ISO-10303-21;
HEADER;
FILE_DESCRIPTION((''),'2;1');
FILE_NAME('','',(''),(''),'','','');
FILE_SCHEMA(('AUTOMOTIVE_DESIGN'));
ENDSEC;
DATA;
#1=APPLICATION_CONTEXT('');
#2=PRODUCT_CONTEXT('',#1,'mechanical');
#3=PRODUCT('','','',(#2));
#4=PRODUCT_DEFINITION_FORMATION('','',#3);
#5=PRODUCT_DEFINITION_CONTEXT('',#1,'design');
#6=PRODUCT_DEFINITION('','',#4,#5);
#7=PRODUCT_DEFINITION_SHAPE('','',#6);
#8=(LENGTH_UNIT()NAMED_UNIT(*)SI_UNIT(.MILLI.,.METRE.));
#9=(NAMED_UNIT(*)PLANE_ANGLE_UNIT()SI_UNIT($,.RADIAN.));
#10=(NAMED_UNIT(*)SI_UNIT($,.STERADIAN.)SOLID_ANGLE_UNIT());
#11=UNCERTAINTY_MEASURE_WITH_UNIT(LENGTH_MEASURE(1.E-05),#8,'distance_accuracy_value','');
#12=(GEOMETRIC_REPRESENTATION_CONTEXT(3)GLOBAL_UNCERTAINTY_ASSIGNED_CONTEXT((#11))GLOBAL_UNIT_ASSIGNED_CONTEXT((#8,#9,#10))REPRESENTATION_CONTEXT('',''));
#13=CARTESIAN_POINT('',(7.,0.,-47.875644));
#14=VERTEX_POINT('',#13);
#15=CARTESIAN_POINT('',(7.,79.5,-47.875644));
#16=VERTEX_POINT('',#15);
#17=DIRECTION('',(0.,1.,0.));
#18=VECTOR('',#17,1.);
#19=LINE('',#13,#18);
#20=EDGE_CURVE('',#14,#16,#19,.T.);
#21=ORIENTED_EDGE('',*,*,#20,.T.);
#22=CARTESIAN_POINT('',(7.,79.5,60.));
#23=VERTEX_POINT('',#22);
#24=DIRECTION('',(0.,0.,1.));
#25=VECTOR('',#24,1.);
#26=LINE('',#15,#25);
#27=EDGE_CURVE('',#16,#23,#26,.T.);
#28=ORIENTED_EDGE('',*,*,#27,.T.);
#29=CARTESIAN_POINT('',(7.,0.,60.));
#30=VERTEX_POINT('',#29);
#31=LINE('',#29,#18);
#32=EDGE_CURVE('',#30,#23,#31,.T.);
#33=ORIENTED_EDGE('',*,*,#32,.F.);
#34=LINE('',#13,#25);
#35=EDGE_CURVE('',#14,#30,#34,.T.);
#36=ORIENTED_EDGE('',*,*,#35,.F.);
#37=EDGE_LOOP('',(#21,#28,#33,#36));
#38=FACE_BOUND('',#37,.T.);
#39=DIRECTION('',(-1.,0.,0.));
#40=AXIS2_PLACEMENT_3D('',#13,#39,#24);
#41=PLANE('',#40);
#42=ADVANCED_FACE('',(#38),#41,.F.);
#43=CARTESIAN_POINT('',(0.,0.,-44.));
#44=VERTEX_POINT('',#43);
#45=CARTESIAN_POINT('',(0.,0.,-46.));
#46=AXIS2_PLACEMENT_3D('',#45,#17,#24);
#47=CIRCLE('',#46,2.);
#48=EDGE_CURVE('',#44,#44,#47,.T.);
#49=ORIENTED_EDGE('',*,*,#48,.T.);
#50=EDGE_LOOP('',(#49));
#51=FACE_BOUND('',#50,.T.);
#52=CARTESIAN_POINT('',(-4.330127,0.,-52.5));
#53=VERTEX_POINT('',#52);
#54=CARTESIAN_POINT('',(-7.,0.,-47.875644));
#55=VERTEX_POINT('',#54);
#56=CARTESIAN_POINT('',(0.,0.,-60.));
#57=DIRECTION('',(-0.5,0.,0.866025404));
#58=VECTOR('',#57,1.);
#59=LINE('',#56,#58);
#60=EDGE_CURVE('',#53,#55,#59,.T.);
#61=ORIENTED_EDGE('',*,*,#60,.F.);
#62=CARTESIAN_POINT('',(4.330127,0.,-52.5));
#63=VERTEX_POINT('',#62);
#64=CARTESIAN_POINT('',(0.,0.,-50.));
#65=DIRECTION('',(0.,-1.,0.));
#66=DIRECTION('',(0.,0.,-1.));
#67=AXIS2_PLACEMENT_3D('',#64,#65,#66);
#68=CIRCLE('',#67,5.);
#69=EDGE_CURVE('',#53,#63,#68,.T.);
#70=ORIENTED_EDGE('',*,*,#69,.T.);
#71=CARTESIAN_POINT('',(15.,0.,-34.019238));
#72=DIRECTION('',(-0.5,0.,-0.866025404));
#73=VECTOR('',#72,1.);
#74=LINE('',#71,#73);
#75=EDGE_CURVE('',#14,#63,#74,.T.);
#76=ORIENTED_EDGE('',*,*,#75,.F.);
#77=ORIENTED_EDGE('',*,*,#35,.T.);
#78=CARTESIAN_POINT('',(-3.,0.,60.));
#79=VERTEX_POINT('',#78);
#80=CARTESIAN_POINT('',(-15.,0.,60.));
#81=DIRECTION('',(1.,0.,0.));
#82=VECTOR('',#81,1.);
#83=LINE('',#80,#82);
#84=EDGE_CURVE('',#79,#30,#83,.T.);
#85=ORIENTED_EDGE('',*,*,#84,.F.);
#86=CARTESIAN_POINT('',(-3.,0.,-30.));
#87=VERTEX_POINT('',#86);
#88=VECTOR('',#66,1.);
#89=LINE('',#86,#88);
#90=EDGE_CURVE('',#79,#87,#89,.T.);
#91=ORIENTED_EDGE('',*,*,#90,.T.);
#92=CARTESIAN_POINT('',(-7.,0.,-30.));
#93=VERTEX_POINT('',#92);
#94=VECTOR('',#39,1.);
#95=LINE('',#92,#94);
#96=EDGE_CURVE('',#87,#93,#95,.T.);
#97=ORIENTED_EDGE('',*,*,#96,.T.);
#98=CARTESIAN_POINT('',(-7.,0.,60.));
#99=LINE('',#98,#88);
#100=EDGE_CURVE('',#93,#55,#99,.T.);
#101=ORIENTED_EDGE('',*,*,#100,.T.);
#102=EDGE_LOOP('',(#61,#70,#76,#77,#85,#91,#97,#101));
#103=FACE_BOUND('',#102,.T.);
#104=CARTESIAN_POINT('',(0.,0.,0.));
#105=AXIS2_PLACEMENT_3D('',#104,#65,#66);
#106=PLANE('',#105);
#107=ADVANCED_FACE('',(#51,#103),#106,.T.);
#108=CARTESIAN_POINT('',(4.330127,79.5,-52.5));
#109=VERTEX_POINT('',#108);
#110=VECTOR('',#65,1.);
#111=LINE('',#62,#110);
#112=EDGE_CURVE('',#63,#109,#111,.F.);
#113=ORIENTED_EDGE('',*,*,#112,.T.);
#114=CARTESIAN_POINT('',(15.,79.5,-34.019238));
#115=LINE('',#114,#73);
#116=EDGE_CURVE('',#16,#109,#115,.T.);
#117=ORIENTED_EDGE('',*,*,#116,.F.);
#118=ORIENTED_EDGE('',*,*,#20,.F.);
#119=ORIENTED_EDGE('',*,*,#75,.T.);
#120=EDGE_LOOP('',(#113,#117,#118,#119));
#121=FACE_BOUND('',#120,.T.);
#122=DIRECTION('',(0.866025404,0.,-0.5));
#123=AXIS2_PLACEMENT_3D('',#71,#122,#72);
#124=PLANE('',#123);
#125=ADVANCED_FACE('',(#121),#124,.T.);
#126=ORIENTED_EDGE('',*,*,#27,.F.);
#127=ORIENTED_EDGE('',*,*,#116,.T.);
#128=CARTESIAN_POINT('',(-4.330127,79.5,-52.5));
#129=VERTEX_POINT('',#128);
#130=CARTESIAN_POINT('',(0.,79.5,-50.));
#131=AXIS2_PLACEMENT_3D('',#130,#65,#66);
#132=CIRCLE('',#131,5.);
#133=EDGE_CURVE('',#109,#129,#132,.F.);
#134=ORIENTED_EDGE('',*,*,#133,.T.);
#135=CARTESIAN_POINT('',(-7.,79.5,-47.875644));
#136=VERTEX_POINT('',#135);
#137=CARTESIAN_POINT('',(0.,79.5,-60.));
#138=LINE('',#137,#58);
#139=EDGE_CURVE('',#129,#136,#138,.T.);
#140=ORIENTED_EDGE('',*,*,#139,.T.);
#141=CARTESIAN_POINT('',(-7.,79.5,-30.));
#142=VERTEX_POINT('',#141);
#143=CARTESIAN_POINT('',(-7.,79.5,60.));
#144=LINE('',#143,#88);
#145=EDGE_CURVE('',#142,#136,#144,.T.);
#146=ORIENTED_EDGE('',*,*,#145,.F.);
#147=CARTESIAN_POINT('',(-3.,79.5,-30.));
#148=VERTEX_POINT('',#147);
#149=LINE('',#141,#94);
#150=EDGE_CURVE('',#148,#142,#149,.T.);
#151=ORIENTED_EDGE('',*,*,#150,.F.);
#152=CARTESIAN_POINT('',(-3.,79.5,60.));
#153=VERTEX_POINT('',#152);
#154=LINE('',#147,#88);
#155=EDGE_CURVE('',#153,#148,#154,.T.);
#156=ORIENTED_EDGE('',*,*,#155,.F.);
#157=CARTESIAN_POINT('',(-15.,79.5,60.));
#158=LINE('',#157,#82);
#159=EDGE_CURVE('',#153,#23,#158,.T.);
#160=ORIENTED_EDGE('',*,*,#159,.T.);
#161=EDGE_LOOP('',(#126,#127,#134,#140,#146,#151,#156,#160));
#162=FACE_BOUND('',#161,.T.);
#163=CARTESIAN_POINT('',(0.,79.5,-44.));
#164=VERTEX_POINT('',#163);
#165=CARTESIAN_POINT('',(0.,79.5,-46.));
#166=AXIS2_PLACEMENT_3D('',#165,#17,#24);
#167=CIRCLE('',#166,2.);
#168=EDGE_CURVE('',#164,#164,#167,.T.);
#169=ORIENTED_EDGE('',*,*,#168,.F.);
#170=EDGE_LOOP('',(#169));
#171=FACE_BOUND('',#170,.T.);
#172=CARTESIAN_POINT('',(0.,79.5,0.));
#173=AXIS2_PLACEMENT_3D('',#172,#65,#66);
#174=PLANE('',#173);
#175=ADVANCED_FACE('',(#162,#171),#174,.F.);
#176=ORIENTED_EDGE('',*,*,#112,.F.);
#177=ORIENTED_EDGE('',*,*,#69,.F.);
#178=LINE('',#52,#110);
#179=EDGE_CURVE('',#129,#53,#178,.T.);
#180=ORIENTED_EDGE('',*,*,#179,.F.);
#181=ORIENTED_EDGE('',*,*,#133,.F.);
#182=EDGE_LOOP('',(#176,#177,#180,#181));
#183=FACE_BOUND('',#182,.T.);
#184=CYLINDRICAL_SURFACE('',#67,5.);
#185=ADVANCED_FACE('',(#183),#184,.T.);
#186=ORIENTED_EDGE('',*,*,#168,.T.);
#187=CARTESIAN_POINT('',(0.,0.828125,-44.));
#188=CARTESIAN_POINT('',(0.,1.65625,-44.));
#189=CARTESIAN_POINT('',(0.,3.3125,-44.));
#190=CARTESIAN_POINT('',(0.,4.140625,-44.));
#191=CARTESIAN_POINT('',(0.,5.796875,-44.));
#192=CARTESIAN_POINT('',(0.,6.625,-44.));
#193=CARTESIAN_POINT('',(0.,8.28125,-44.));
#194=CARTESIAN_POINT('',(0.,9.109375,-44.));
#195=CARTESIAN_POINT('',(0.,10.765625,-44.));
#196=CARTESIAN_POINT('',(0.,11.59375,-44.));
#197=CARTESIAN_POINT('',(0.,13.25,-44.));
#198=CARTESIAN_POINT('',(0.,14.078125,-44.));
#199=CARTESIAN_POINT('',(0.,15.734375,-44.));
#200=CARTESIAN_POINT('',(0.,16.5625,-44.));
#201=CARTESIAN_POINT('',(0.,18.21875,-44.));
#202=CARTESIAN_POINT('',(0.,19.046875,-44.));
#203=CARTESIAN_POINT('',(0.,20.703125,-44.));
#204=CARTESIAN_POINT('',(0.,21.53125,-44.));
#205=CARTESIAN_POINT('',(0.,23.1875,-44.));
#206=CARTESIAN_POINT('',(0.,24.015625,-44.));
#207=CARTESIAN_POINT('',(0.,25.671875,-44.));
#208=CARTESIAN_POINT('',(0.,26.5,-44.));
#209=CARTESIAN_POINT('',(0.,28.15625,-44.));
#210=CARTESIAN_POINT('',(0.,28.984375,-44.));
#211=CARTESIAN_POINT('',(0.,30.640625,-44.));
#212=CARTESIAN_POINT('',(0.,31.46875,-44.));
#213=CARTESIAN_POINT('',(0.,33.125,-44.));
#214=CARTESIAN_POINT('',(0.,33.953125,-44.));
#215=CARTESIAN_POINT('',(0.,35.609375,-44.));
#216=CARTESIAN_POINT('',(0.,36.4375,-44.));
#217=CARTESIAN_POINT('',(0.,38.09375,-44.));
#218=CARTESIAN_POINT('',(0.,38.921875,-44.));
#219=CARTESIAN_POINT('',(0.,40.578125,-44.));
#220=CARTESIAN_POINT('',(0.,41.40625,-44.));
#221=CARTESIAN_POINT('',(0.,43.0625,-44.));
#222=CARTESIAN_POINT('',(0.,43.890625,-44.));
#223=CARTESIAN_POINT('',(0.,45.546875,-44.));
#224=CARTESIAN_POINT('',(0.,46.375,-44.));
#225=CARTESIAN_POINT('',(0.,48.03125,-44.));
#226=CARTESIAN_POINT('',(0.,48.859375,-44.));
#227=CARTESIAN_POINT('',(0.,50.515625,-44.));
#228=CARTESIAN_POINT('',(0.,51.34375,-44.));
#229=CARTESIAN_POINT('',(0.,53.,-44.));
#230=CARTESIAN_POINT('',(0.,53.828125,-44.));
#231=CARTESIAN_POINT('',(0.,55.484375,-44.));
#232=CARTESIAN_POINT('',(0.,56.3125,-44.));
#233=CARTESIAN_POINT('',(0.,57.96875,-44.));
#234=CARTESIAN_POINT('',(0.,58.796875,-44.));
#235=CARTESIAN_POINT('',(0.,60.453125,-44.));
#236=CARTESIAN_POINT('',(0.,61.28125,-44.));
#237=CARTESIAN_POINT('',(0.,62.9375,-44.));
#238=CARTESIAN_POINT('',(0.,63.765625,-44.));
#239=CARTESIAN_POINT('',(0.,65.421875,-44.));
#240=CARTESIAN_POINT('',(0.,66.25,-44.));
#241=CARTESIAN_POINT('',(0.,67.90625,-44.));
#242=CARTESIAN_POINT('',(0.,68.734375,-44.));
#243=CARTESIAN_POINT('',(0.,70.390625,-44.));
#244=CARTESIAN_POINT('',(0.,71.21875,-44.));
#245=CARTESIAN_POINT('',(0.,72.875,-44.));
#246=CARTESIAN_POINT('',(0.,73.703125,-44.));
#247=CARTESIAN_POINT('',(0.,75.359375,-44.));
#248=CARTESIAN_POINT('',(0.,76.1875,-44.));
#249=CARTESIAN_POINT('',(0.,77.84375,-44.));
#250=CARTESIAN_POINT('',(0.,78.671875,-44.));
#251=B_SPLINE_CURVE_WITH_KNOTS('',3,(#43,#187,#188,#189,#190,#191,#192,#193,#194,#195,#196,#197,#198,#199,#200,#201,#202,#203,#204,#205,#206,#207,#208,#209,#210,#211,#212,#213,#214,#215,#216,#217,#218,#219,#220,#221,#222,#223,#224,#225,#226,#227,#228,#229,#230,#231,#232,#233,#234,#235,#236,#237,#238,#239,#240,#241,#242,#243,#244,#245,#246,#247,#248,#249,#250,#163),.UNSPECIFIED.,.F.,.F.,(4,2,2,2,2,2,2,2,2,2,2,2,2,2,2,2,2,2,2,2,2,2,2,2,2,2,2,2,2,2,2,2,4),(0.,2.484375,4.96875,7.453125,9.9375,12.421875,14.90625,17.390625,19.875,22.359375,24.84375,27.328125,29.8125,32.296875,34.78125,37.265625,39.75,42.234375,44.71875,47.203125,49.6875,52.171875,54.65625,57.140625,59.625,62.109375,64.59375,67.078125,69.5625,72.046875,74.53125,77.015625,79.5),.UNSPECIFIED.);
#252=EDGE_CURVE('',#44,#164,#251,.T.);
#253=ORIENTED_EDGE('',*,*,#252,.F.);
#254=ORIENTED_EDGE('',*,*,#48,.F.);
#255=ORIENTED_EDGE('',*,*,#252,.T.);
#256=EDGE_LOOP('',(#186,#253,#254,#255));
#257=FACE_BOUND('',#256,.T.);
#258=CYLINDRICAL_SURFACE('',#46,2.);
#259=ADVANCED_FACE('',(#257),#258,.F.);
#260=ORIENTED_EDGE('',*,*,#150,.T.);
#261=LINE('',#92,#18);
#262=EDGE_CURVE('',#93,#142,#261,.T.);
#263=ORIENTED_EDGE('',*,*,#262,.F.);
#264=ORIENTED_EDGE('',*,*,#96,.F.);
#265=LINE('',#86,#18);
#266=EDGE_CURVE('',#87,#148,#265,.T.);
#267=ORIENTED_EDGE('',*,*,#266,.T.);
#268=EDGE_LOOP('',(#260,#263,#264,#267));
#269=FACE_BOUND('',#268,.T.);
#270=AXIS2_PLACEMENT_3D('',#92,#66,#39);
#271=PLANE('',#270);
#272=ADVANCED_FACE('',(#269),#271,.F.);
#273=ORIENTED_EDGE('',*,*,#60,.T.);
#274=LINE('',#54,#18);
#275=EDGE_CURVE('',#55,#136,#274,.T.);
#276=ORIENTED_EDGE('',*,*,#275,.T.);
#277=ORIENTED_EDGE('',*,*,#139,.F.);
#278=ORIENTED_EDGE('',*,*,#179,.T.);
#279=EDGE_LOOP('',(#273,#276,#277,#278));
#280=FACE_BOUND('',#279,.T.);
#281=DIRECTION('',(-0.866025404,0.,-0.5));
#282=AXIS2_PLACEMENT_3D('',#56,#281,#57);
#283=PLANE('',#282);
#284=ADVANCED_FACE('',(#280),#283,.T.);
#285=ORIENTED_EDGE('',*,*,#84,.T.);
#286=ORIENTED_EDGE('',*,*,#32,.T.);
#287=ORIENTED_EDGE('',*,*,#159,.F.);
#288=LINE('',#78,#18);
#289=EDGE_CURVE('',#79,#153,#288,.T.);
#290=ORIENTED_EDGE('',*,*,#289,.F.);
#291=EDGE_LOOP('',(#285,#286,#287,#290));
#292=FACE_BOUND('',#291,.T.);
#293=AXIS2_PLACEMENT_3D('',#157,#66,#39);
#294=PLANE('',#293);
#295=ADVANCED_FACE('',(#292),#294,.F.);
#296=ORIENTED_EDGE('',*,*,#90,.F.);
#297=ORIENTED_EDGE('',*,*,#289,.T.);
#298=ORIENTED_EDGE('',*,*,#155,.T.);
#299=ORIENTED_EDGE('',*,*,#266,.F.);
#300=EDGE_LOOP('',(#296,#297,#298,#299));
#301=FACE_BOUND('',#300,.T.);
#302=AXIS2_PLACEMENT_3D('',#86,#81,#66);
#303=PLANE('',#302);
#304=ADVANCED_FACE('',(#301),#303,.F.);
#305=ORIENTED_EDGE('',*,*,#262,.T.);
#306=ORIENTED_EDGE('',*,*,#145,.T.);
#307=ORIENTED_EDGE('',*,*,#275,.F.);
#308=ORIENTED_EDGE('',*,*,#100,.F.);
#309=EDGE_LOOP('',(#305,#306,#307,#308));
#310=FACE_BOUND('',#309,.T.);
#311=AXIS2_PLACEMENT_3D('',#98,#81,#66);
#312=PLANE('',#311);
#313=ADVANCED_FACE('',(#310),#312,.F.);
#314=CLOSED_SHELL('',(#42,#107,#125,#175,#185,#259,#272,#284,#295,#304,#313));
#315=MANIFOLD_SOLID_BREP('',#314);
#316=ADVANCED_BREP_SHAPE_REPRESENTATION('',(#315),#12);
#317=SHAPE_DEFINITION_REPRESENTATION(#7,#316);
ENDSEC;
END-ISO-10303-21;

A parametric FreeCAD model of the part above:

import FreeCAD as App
import Part
import Sketcher

V = App.Vector
Q = App.Units.Quantity


def edges_at(feature, points):
    """Names of the edges that pass closest to the given points."""
    edges = feature.Shape.Edges
    near = lambda p: min(range(len(edges)), key=lambda i: edges[i].distToShape(Part.Vertex(*p))[0])
    return sorted({f"Edge{near(p) + 1}" for p in points})

doc = App.newDocument("Part")
body = doc.addObject("PartDesign::Body", "Body")

sketch1 = body.newObject("Sketcher::SketchObject", "Sketch")
sketch1.AttachmentSupport = (doc.getObject("XZ_Plane"), [""])
sketch1.MapMode = "FlatFace"
sketch1.addGeometry(Part.LineSegment(V(-15, -60, 0), V(-15, 60, 0)), False)
sketch1.addGeometry(Part.LineSegment(V(-15, 60, 0), V(15, 60, 0)), False)
sketch1.addGeometry(Part.LineSegment(V(15, 60, 0), V(15, -60, 0)), False)
sketch1.addGeometry(Part.LineSegment(V(15, -60, 0), V(-15, -60, 0)), False)
sketch1.addConstraint(Sketcher.Constraint("Coincident", 0, 2, 1, 1))
sketch1.addConstraint(Sketcher.Constraint("Coincident", 1, 2, 2, 1))
sketch1.addConstraint(Sketcher.Constraint("Coincident", 2, 2, 3, 1))
sketch1.addConstraint(Sketcher.Constraint("Coincident", 3, 2, 0, 1))
sketch1.addConstraint(Sketcher.Constraint("Vertical", 0))
sketch1.addConstraint(Sketcher.Constraint("Horizontal", 1))
sketch1.addConstraint(Sketcher.Constraint("Vertical", 2))
sketch1.addConstraint(Sketcher.Constraint("Horizontal", 3))
sketch1.addConstraint(Sketcher.Constraint("Symmetric", 0, 2, 2, 2, -1, 1))
sketch1.addConstraint(Sketcher.Constraint("DistanceX", 1, 1, 1, 2, 30.0))
sketch1.addConstraint(Sketcher.Constraint("DistanceY", 0, 1, 0, 2, 120.0))
pad1 = body.newObject("PartDesign::Pad", "Pad")
pad1.Profile = sketch1
pad1.Length = 79.5
pad1.Reversed = True

sketch2 = body.newObject("Sketcher::SketchObject", "Sketch001")
sketch2.AttachmentSupport = (doc.getObject("XZ_Plane"), [""])
sketch2.MapMode = "FlatFace"
sketch2.AttachmentOffset = App.Placement(V(0, 0, -79.5), App.Rotation())
sketch2.addGeometry(Part.LineSegment(V(-31, -76, 0), V(-31, 76, 0)), False)
sketch2.addGeometry(Part.LineSegment(V(-31, 76, 0), V(31, 76, 0)), False)
sketch2.addGeometry(Part.LineSegment(V(31, 76, 0), V(31, -76, 0)), False)
sketch2.addGeometry(Part.LineSegment(V(31, -76, 0), V(-31, -76, 0)), False)
sketch2.addGeometry(Part.LineSegment(V(-15, -34, 0), V(0, -60, 0)), False)
sketch2.addGeometry(Part.LineSegment(V(0, -60, 0), V(15, -34, 0)), False)
sketch2.addGeometry(Part.LineSegment(V(15, -34, 0), V(15, 60, 0)), False)
sketch2.addGeometry(Part.LineSegment(V(15, 60, 0), V(-15, 60, 0)), False)
sketch2.addGeometry(Part.LineSegment(V(-15, 60, 0), V(-15, -34, 0)), False)
sketch2.addConstraint(Sketcher.Constraint("Coincident", 0, 2, 1, 1))
sketch2.addConstraint(Sketcher.Constraint("Coincident", 1, 2, 2, 1))
sketch2.addConstraint(Sketcher.Constraint("Coincident", 2, 2, 3, 1))
sketch2.addConstraint(Sketcher.Constraint("Coincident", 3, 2, 0, 1))
sketch2.addConstraint(Sketcher.Constraint("Coincident", 4, 2, 5, 1))
sketch2.addConstraint(Sketcher.Constraint("Coincident", 5, 2, 6, 1))
sketch2.addConstraint(Sketcher.Constraint("Coincident", 6, 2, 7, 1))
sketch2.addConstraint(Sketcher.Constraint("Coincident", 7, 2, 8, 1))
sketch2.addConstraint(Sketcher.Constraint("Coincident", 8, 2, 4, 1))
sketch2.addConstraint(Sketcher.Constraint("Vertical", 0))
sketch2.addConstraint(Sketcher.Constraint("Horizontal", 1))
sketch2.addConstraint(Sketcher.Constraint("Vertical", 2))
sketch2.addConstraint(Sketcher.Constraint("Horizontal", 3))
sketch2.addConstraint(Sketcher.Constraint("Vertical", 6))
sketch2.addConstraint(Sketcher.Constraint("Horizontal", 7))
sketch2.addConstraint(Sketcher.Constraint("Vertical", 8))
sketch2.addConstraint(Sketcher.Constraint("Symmetric", 0, 2, 2, 2, -1, 1))
sketch2.addConstraint(Sketcher.Constraint("Symmetric", 5, 2, 8, 2, -2))
sketch2.addConstraint(Sketcher.Constraint("PointOnObject", 4, 2, -2))
sketch2.addConstraint(Sketcher.Constraint("DistanceX", 7, 2, 7, 1, 30.0))
sketch2.addConstraint(Sketcher.Constraint("Angle", 4, Q("-60 deg")))
sketch2.addConstraint(Sketcher.Constraint("DistanceY", 4, 2, -1, 1, 60.0))
sketch2.addConstraint(Sketcher.Constraint("DistanceY", -1, 1, 6, 2, 60.0))
sketch2.addConstraint(Sketcher.Constraint("DistanceX", 1, 1, 1, 2, 61.408))
sketch2.addConstraint(Sketcher.Constraint("DistanceY", 0, 1, 0, 2, 151.408))
pocket1 = body.newObject("PartDesign::Pocket", "Pocket")
pocket1.Profile = sketch2
pocket1.Type = "ThroughAll"
pocket1.Reversed = True
doc.recompute()

fillet = body.newObject("PartDesign::Fillet", "Fillet")
fillet.Base = (pocket1, edges_at(pocket1, [(0, 39.75, -60)]))
fillet.Radius = 5

sketch3 = body.newObject("Sketcher::SketchObject", "Sketch002")
sketch3.AttachmentSupport = (doc.getObject("XZ_Plane"), [""])
sketch3.MapMode = "FlatFace"
sketch3.AttachmentOffset = App.Placement(V(0, 0, -79.5), App.Rotation())
sketch3.addGeometry(Part.LineSegment(V(-15, -34, 0), V(-15, 60, 0)), False)
sketch3.addGeometry(Part.LineSegment(V(-15, 60, 0), V(-7, 60, 0)), False)
sketch3.addGeometry(Part.LineSegment(V(-7, 60, 0), V(-7, -48, 0)), False)
sketch3.addGeometry(Part.LineSegment(V(-7, -48, 0), V(-15, -34, 0)), False)
sketch3.addGeometry(Part.LineSegment(V(7, -48, 0), V(7, 60, 0)), False)
sketch3.addGeometry(Part.LineSegment(V(7, 60, 0), V(15, 60, 0)), False)
sketch3.addGeometry(Part.LineSegment(V(15, 60, 0), V(15, -34, 0)), False)
sketch3.addGeometry(Part.LineSegment(V(15, -34, 0), V(7, -48, 0)), False)
sketch3.addConstraint(Sketcher.Constraint("Coincident", 0, 2, 1, 1))
sketch3.addConstraint(Sketcher.Constraint("Coincident", 1, 2, 2, 1))
sketch3.addConstraint(Sketcher.Constraint("Coincident", 2, 2, 3, 1))
sketch3.addConstraint(Sketcher.Constraint("Coincident", 3, 2, 0, 1))
sketch3.addConstraint(Sketcher.Constraint("Coincident", 4, 2, 5, 1))
sketch3.addConstraint(Sketcher.Constraint("Coincident", 5, 2, 6, 1))
sketch3.addConstraint(Sketcher.Constraint("Coincident", 6, 2, 7, 1))
sketch3.addConstraint(Sketcher.Constraint("Coincident", 7, 2, 4, 1))
sketch3.addConstraint(Sketcher.Constraint("Vertical", 0))
sketch3.addConstraint(Sketcher.Constraint("Horizontal", 1))
sketch3.addConstraint(Sketcher.Constraint("Vertical", 2))
sketch3.addConstraint(Sketcher.Constraint("Vertical", 4))
sketch3.addConstraint(Sketcher.Constraint("Horizontal", 5))
sketch3.addConstraint(Sketcher.Constraint("Vertical", 6))
sketch3.addConstraint(Sketcher.Constraint("Symmetric", 1, 2, 4, 2, -2))
sketch3.addConstraint(Sketcher.Constraint("Symmetric", 3, 2, 6, 2, -2))
sketch3.addConstraint(Sketcher.Constraint("Horizontal", 2, 2, 7, 2))
sketch3.addConstraint(Sketcher.Constraint("DistanceX", 1, 1, 1, 2, 8.0))
sketch3.addConstraint(Sketcher.Constraint("Angle", 3, Q("120 deg")))
sketch3.addConstraint(Sketcher.Constraint("DistanceX", 0, 2, -1, 1, 15.0))
sketch3.addConstraint(Sketcher.Constraint("DistanceY", -1, 1, 0, 2, 60.0))
sketch3.addConstraint(Sketcher.Constraint("DistanceY", 0, 1, 0, 2, 94.019238))
pocket2 = body.newObject("PartDesign::Pocket", "Pocket001")
pocket2.Profile = sketch3
pocket2.Type = "ThroughAll"
pocket2.Reversed = True

sketch4 = body.newObject("Sketcher::SketchObject", "Sketch003")
sketch4.AttachmentSupport = (doc.getObject("XZ_Plane"), [""])
sketch4.MapMode = "FlatFace"
sketch4.AttachmentOffset = App.Placement(V(0, 0, -79.5), App.Rotation())
sketch4.addGeometry(Part.LineSegment(V(-7, -30, 0), V(-7, 60, 0)), False)
sketch4.addGeometry(Part.LineSegment(V(-7, 60, 0), V(-3, 60, 0)), False)
sketch4.addGeometry(Part.LineSegment(V(-3, 60, 0), V(-3, -30, 0)), False)
sketch4.addGeometry(Part.LineSegment(V(-3, -30, 0), V(-7, -30, 0)), False)
sketch4.addConstraint(Sketcher.Constraint("Coincident", 0, 2, 1, 1))
sketch4.addConstraint(Sketcher.Constraint("Coincident", 1, 2, 2, 1))
sketch4.addConstraint(Sketcher.Constraint("Coincident", 2, 2, 3, 1))
sketch4.addConstraint(Sketcher.Constraint("Coincident", 3, 2, 0, 1))
sketch4.addConstraint(Sketcher.Constraint("Vertical", 0))
sketch4.addConstraint(Sketcher.Constraint("Horizontal", 1))
sketch4.addConstraint(Sketcher.Constraint("Vertical", 2))
sketch4.addConstraint(Sketcher.Constraint("Horizontal", 3))
sketch4.addConstraint(Sketcher.Constraint("DistanceX", 1, 1, 1, 2, 4.0))
sketch4.addConstraint(Sketcher.Constraint("DistanceY", 0, 1, 0, 2, 90.0))
sketch4.addConstraint(Sketcher.Constraint("DistanceX", 0, 2, -1, 1, 7.0))
sketch4.addConstraint(Sketcher.Constraint("DistanceY", -1, 1, 0, 2, 60.0))
pocket3 = body.newObject("PartDesign::Pocket", "Pocket002")
pocket3.Profile = sketch4
pocket3.Type = "ThroughAll"
pocket3.Reversed = True

sketch5 = body.newObject("Sketcher::SketchObject", "Sketch004")
sketch5.AttachmentSupport = (doc.getObject("XZ_Plane"), [""])
sketch5.MapMode = "FlatFace"
sketch5.AttachmentOffset = App.Placement(V(0, 0, -79.5), App.Rotation())
sketch5.addGeometry(Part.Circle(V(0, -46, 0), V(0, 0, 1), 2), False)
sketch5.addConstraint(Sketcher.Constraint("PointOnObject", 0, 3, -2))
sketch5.addConstraint(Sketcher.Constraint("Diameter", 0, 4.0))
sketch5.addConstraint(Sketcher.Constraint("DistanceY", 0, 3, -1, 1, 46.0))
pocket4 = body.newObject("PartDesign::Pocket", "Pocket003")
pocket4.Profile = sketch5
pocket4.Type = "ThroughAll"
pocket4.Reversed = True

doc.recompute()
